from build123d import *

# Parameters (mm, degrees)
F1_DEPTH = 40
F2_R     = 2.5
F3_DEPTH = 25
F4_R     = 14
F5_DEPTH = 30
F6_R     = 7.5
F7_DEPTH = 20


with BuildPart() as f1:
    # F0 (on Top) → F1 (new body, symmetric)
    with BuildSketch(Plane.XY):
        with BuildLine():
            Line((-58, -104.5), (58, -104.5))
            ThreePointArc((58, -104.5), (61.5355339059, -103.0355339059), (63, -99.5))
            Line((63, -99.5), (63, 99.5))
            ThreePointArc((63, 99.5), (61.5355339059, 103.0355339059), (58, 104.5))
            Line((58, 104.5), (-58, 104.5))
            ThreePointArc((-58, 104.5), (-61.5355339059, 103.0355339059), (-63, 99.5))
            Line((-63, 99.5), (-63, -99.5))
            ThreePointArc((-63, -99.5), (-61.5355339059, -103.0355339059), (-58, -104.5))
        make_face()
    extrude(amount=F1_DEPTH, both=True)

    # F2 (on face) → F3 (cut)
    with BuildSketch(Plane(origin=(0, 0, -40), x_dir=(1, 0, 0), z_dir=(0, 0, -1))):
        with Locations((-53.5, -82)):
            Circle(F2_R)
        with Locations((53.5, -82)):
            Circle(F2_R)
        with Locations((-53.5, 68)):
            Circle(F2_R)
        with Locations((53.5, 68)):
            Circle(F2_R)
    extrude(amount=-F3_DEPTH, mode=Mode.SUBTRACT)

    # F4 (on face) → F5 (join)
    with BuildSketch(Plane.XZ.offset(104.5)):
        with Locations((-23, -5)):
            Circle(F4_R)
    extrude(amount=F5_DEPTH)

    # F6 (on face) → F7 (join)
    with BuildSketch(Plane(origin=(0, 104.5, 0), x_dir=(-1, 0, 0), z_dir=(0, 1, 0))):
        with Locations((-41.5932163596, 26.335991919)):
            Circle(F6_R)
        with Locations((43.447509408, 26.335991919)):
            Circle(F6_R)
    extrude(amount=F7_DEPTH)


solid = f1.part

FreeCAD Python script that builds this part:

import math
import FreeCAD as App
import Part
import Sketcher
from FreeCAD import Vector
Q = App.Units.Quantity

doc = App.newDocument("Part")
params = doc.addObject("Spreadsheet::Sheet", "Params")
for row, (alias, value) in enumerate([
    ("sketch1_radius", "5 mm"),
    ("sketch1_width", "116 mm"),
    ("sketch1_height", "199 mm"),
    ("pad1_length", "80 mm"),
    ("sketch2_diameter", "5 mm"),
    ("pocket1_length", "25 mm"),
    ("sketch3_diameter", "28 mm"),
    ("pad2_length", "30 mm"),
    ("sketch4_diameter", "15 mm"),
    ("pad3_length", "20 mm"),
], start=1):
    params.set(f"A{row}", alias)
    params.set(f"B{row}", "=" + value)
    params.setAlias(f"B{row}", alias)

body = doc.addObject("PartDesign::Body", "Body")

# Sketch on XY plane
sketch1 = doc.addObject("Sketcher::SketchObject", "Sketch")
body.addObject(sketch1)
sketch1.AttachmentSupport = (doc.XY_Plane, [""])
sketch1.MapMode = "FlatFace"
sketch1.addGeometry(Part.LineSegment(Vector(-58, -104, 0), Vector(58, -104, 0)), False)
sketch1.addGeometry(Part.ArcOfCircle(Part.Circle(Vector(58, -100, 0), Vector(0, 0, 1), 5), math.radians(-90), math.radians(0)), False)
sketch1.addGeometry(Part.LineSegment(Vector(63, -100, 0), Vector(63, 100, 0)), False)
sketch1.addGeometry(Part.ArcOfCircle(Part.Circle(Vector(58, 100, 0), Vector(0, 0, 1), 5), math.radians(0), math.radians(90)), False)
sketch1.addGeometry(Part.LineSegment(Vector(58, 104, 0), Vector(-58, 104, 0)), False)
sketch1.addGeometry(Part.ArcOfCircle(Part.Circle(Vector(-58, 100, 0), Vector(0, 0, 1), 5), math.radians(90), math.radians(180)), False)
sketch1.addGeometry(Part.LineSegment(Vector(-63, 100, 0), Vector(-63, -100, 0)), False)
sketch1.addGeometry(Part.ArcOfCircle(Part.Circle(Vector(-58, -100, 0), Vector(0, 0, 1), 5), math.radians(180), math.radians(270)), False)
sketch1.addConstraint(Sketcher.Constraint("Tangent", 0, 2, 1, 1))
sketch1.addConstraint(Sketcher.Constraint("Tangent", 1, 2, 2, 1))
sketch1.addConstraint(Sketcher.Constraint("Tangent", 2, 2, 3, 1))
sketch1.addConstraint(Sketcher.Constraint("Tangent", 3, 2, 4, 1))
sketch1.addConstraint(Sketcher.Constraint("Tangent", 4, 2, 5, 1))
sketch1.addConstraint(Sketcher.Constraint("Tangent", 5, 2, 6, 1))
sketch1.addConstraint(Sketcher.Constraint("Tangent", 6, 2, 7, 1))
sketch1.addConstraint(Sketcher.Constraint("Tangent", 7, 2, 0, 1))
sketch1.addConstraint(Sketcher.Constraint("Horizontal", 0))
sketch1.addConstraint(Sketcher.Constraint("Vertical", 2))
sketch1.addConstraint(Sketcher.Constraint("Horizontal", 4))
sketch1.addConstraint(Sketcher.Constraint("Vertical", 6))
sketch1.addConstraint(Sketcher.Constraint("Equal", 1, 3))
sketch1.addConstraint(Sketcher.Constraint("Equal", 3, 5))
sketch1.addConstraint(Sketcher.Constraint("Equal", 5, 7))
sketch1.addConstraint(Sketcher.Constraint("Symmetric", 1, 3, 5, 3, -1, 1))
sketch1.addConstraint(Sketcher.Constraint("Radius", 1, Q("5 mm")))
sketch1.addConstraint(Sketcher.Constraint("DistanceX", 0, 1, 0, 2, Q("116 mm")))
sketch1.addConstraint(Sketcher.Constraint("DistanceY", 2, 1, 2, 2, Q("199 mm")))
sketch1.setExpression("Constraints[16]", "Params.sketch1_radius")
sketch1.setExpression("Constraints[17]", "Params.sketch1_width")
sketch1.setExpression("Constraints[18]", "Params.sketch1_height")
pad1 = doc.addObject("PartDesign::Pad", "Pad")
body.addObject(pad1)
pad1.Profile = sketch1
pad1.setExpression("Length", "Params.pad1_length")
pad1.Midplane = True

# Sketch on XY plane
sketch2 = doc.addObject("Sketcher::SketchObject", "Sketch001")
body.addObject(sketch2)
sketch2.AttachmentSupport = (doc.XY_Plane, [""])
sketch2.MapMode = "FlatFace"
sketch2.AttachmentOffset = App.Placement(Vector(0, 0, -40), App.Rotation())
sketch2.addGeometry(Part.Circle(Vector(-53.5, 82, 0), Vector(0, 0, 1), 2.5), False)
sketch2.addGeometry(Part.Circle(Vector(53.5, 82, 0), Vector(0, 0, 1), 2.5), False)
sketch2.addGeometry(Part.Circle(Vector(-53.5, -68, 0), Vector(0, 0, 1), 2.5), False)
sketch2.addGeometry(Part.Circle(Vector(53.5, -68, 0), Vector(0, 0, 1), 2.5), False)
sketch2.addConstraint(Sketcher.Constraint("Equal", 0, 1))
sketch2.addConstraint(Sketcher.Constraint("Equal", 1, 2))
sketch2.addConstraint(Sketcher.Constraint("Equal", 2, 3))
sketch2.addConstraint(Sketcher.Constraint("Symmetric", 0, 3, 1, 3, -2))
sketch2.addConstraint(Sketcher.Constraint("Symmetric", 2, 3, 3, 3, -2))
sketch2.addConstraint(Sketcher.Constraint("Vertical", 0, 3, 2, 3))
sketch2.addConstraint(Sketcher.Constraint("Diameter", 0, Q("5 mm")))
sketch2.addConstraint(Sketcher.Constraint("DistanceY", -1, 1, 0, 3, Q("82 mm")))
sketch2.addConstraint(Sketcher.Constraint("DistanceY", 2, 3, -1, 1, Q("68 mm")))
sketch2.addConstraint(Sketcher.Constraint("DistanceX", 0, 3, 1, 3, Q("107 mm")))
sketch2.setExpression("Constraints[6]", "Params.sketch2_diameter")
pocket1 = doc.addObject("PartDesign::Pocket", "Pocket")
body.addObject(pocket1)
pocket1.Profile = sketch2
pocket1.setExpression("Length", "Params.pocket1_length")
pocket1.Reversed = True

# Sketch on XZ plane
sketch3 = doc.addObject("Sketcher::SketchObject", "Sketch002")
body.addObject(sketch3)
sketch3.AttachmentSupport = (doc.XZ_Plane, [""])
sketch3.MapMode = "FlatFace"
sketch3.AttachmentOffset = App.Placement(Vector(0, 0, 104.5), App.Rotation())
sketch3.addGeometry(Part.Circle(Vector(-23, -5, 0), Vector(0, 0, 1), 14), False)
sketch3.addConstraint(Sketcher.Constraint("Diameter", 0, Q("28 mm")))
sketch3.addConstraint(Sketcher.Constraint("DistanceX", 0, 3, -1, 1, Q("23 mm")))
sketch3.addConstraint(Sketcher.Constraint("DistanceY", 0, 3, -1, 1, Q("5 mm")))
sketch3.setExpression("Constraints[0]", "Params.sketch3_diameter")
pad2 = doc.addObject("PartDesign::Pad", "Pad001")
body.addObject(pad2)
pad2.Profile = sketch3
pad2.setExpression("Length", "Params.pad2_length")

# Sketch on XZ plane
sketch4 = doc.addObject("Sketcher::SketchObject", "Sketch003")
body.addObject(sketch4)
sketch4.AttachmentSupport = (doc.XZ_Plane, [""])
sketch4.MapMode = "FlatFace"
sketch4.AttachmentOffset = App.Placement(Vector(0, 0, -104.5), App.Rotation())
sketch4.addGeometry(Part.Circle(Vector(42, 26, 0), Vector(0, 0, 1), 8), False)
sketch4.addGeometry(Part.Circle(Vector(-43, 26, 0), Vector(0, 0, 1), 8), False)
sketch4.addConstraint(Sketcher.Constraint("Equal", 0, 1))
sketch4.addConstraint(Sketcher.Constraint("Horizontal", 0, 3, 1, 3))
sketch4.addConstraint(Sketcher.Constraint("Diameter", 0, Q("15 mm")))
sketch4.addConstraint(Sketcher.Constraint("DistanceY", -1, 1, 0, 3, Q("26.335992 mm")))
sketch4.addConstraint(Sketcher.Constraint("DistanceX", 1, 3, -1, 1, Q("43.447509 mm")))
sketch4.addConstraint(Sketcher.Constraint("DistanceX", -1, 1, 0, 3, Q("41.593216 mm")))
sketch4.setExpression("Constraints[2]", "Params.sketch4_diameter")
pad3 = doc.addObject("PartDesign::Pad", "Pad002")
body.addObject(pad3)
pad3.Profile = sketch4
pad3.setExpression("Length", "Params.pad3_length")
pad3.Reversed = True

doc.recompute()
